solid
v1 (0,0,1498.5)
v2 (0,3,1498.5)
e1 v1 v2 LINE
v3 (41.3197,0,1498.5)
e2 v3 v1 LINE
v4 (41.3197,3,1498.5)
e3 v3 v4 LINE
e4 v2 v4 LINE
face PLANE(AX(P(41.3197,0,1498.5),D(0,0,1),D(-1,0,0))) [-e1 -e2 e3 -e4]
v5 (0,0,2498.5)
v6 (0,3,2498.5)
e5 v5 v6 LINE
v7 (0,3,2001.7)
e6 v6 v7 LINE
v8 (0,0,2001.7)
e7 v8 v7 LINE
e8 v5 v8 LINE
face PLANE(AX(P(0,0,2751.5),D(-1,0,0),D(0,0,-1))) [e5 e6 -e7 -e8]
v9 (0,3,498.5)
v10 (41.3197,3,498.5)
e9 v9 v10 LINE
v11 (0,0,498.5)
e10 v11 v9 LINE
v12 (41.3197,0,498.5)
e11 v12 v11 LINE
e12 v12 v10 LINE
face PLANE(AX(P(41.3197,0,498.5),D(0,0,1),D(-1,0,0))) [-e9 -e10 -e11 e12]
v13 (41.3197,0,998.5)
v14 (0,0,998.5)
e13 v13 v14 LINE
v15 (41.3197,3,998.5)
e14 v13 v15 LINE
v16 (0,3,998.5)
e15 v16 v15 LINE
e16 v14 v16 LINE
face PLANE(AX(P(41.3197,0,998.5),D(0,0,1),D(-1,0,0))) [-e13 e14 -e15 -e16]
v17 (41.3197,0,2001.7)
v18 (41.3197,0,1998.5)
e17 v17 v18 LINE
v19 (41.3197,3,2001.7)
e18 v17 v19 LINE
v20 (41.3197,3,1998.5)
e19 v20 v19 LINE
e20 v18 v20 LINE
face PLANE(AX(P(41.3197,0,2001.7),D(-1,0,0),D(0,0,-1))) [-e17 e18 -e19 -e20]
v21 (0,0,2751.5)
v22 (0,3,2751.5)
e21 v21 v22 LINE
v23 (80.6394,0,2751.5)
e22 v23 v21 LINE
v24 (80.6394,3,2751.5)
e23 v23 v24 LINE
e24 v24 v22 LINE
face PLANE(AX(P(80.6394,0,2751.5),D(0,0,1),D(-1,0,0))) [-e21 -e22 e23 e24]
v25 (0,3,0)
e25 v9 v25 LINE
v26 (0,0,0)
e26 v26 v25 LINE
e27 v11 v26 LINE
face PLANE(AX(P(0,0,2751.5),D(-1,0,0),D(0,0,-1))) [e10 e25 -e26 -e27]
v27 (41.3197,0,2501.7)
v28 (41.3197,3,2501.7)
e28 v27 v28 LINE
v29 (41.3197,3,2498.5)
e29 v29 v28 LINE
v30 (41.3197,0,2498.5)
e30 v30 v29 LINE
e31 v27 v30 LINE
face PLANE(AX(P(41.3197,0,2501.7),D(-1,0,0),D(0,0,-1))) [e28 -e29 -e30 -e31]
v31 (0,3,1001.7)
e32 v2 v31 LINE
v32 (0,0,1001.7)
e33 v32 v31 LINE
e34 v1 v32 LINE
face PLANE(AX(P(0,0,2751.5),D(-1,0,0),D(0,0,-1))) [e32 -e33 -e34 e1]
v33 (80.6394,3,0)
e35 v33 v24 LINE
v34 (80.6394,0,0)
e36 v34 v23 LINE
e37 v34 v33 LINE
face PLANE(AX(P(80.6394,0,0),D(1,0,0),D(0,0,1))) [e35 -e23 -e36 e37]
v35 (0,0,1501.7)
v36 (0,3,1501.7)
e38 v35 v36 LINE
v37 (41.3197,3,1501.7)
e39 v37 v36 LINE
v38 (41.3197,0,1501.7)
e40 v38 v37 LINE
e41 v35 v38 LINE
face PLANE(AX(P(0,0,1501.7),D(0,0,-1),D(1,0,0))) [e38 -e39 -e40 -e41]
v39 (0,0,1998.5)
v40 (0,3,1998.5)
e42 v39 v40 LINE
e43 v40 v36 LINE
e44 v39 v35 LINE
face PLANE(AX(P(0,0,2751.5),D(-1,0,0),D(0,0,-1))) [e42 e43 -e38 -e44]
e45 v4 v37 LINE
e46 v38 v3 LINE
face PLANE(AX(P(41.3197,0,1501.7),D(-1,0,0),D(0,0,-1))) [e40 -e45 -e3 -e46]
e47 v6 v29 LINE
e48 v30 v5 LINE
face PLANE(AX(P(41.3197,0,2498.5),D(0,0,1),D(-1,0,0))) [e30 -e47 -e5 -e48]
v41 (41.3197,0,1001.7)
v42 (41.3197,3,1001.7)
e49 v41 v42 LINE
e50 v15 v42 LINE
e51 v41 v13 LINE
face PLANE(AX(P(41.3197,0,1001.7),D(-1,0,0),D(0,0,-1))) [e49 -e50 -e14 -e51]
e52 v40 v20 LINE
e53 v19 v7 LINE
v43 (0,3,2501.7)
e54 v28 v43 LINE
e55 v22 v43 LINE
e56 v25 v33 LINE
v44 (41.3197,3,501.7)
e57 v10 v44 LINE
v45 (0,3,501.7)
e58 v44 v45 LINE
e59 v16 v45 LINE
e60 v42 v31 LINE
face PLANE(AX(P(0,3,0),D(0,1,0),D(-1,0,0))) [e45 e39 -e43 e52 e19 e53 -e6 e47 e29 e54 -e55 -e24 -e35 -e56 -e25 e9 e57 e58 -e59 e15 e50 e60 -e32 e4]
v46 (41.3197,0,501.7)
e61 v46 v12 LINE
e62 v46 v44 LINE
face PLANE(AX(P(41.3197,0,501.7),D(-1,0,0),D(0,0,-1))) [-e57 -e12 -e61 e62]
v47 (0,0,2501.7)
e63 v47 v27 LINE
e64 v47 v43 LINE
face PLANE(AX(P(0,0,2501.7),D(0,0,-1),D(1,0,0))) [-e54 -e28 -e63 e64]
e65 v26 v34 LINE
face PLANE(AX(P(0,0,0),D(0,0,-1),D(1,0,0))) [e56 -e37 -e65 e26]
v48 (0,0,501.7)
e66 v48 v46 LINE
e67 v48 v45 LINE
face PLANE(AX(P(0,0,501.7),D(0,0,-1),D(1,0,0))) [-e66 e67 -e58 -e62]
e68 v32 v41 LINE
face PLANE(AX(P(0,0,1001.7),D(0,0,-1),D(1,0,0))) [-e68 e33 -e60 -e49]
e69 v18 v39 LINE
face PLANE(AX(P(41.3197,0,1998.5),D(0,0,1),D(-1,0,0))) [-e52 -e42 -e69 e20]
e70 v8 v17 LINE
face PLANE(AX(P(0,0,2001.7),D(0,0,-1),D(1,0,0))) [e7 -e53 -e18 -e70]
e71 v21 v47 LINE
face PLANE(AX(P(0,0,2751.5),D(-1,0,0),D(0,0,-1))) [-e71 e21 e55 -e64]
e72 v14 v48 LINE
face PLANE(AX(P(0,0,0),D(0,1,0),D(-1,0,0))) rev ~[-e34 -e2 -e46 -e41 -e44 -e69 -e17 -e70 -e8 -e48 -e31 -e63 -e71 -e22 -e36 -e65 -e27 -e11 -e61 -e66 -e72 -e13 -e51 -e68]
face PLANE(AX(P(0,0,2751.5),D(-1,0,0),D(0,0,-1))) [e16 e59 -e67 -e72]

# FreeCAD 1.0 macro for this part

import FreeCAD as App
import Part
import Sketcher
from FreeCAD import Vector
Q = App.Units.Quantity

doc = App.newDocument("Part")
body = doc.addObject("PartDesign::Body", "Body")

# Sketch on XZ plane
sketch1 = doc.addObject("Sketcher::SketchObject", "Sketch")
body.addObject(sketch1)
sketch1.AttachmentSupport = (doc.XZ_Plane, [""])
sketch1.MapMode = "FlatFace"
sketch1.addGeometry([
    Part.LineSegment(Vector(81, 0, 0), Vector(0, 0, 0)),
    Part.LineSegment(Vector(0, 0, 0), Vector(0, 2752, 0)),
    Part.LineSegment(Vector(0, 2752, 0), Vector(81, 2752, 0)),
    Part.LineSegment(Vector(81, 2752, 0), Vector(81, 0, 0)),
], False)
sketch1.addConstraint([
    Sketcher.Constraint("Coincident", 0, 2, 1, 1),
    Sketcher.Constraint("Coincident", 1, 2, 2, 1),
    Sketcher.Constraint("Coincident", 2, 2, 3, 1),
    Sketcher.Constraint("Coincident", 3, 2, 0, 1),
    Sketcher.Constraint("Horizontal", 0),
    Sketcher.Constraint("Vertical", 1),
    Sketcher.Constraint("Horizontal", 2),
    Sketcher.Constraint("Vertical", 3),
    Sketcher.Constraint("Coincident", 0, 2, -1, 1),
    Sketcher.Constraint("DistanceY", 1, 1, 1, 2, Q("2751.5 mm")),
    Sketcher.Constraint("DistanceX", 0, 2, 0, 1, Q("80.6394 mm")),
])
pad1 = doc.addObject("PartDesign::Pad", "Pad")
body.addObject(pad1)
pad1.Profile = sketch1
pad1.Length = 3
pad1.Reversed = True

# Sketch on XZ plane
sketch2 = doc.addObject("Sketcher::SketchObject", "Sketch001")
body.addObject(sketch2)
sketch2.AttachmentSupport = (doc.XZ_Plane, [""])
sketch2.MapMode = "FlatFace"
sketch2.addGeometry([
    Part.LineSegment(Vector(41.3, 501.7, 0), Vector(0, 501.7, 0)),
    Part.LineSegment(Vector(0, 501.7, 0), Vector(0, 498.5, 0)),
    Part.LineSegment(Vector(0, 498.5, 0), Vector(41.3, 498.5, 0)),
    Part.LineSegment(Vector(41.3, 498.5, 0), Vector(41.3, 501.7, 0)),
], False)
sketch2.addConstraint([
    Sketcher.Constraint("Coincident", 0, 2, 1, 1),
    Sketcher.Constraint("Coincident", 1, 2, 2, 1),
    Sketcher.Constraint("Coincident", 2, 2, 3, 1),
    Sketcher.Constraint("Coincident", 3, 2, 0, 1),
    Sketcher.Constraint("Horizontal", 0),
    Sketcher.Constraint("Vertical", 1),
    Sketcher.Constraint("Horizontal", 2),
    Sketcher.Constraint("Vertical", 3),
    Sketcher.Constraint("PointOnObject", 0, 2, -2),
    Sketcher.Constraint("DistanceY", 1, 2, 1, 1, Q("3.2 mm")),
    Sketcher.Constraint("DistanceY", -1, 1, 1, 2, Q("498.5 mm")),
    Sketcher.Constraint("DistanceX", 0, 2, 0, 1, Q("41.3197 mm")),
])
pocket1 = doc.addObject("PartDesign::Pocket", "Pocket")
body.addObject(pocket1)
pocket1.Profile = sketch2
pocket1.Type = "ThroughAll"
doc.recompute()

linearpattern = doc.addObject("PartDesign::LinearPattern", "LinearPattern")
body.addObject(linearpattern)
linearpattern.Originals = [pocket1]
linearpattern.Direction = (doc.Z_Axis, [""])
linearpattern.Mode = "offset"
linearpattern.Offset = 500
linearpattern.Occurrences = 5
body.Tip = linearpattern

doc.recompute()
